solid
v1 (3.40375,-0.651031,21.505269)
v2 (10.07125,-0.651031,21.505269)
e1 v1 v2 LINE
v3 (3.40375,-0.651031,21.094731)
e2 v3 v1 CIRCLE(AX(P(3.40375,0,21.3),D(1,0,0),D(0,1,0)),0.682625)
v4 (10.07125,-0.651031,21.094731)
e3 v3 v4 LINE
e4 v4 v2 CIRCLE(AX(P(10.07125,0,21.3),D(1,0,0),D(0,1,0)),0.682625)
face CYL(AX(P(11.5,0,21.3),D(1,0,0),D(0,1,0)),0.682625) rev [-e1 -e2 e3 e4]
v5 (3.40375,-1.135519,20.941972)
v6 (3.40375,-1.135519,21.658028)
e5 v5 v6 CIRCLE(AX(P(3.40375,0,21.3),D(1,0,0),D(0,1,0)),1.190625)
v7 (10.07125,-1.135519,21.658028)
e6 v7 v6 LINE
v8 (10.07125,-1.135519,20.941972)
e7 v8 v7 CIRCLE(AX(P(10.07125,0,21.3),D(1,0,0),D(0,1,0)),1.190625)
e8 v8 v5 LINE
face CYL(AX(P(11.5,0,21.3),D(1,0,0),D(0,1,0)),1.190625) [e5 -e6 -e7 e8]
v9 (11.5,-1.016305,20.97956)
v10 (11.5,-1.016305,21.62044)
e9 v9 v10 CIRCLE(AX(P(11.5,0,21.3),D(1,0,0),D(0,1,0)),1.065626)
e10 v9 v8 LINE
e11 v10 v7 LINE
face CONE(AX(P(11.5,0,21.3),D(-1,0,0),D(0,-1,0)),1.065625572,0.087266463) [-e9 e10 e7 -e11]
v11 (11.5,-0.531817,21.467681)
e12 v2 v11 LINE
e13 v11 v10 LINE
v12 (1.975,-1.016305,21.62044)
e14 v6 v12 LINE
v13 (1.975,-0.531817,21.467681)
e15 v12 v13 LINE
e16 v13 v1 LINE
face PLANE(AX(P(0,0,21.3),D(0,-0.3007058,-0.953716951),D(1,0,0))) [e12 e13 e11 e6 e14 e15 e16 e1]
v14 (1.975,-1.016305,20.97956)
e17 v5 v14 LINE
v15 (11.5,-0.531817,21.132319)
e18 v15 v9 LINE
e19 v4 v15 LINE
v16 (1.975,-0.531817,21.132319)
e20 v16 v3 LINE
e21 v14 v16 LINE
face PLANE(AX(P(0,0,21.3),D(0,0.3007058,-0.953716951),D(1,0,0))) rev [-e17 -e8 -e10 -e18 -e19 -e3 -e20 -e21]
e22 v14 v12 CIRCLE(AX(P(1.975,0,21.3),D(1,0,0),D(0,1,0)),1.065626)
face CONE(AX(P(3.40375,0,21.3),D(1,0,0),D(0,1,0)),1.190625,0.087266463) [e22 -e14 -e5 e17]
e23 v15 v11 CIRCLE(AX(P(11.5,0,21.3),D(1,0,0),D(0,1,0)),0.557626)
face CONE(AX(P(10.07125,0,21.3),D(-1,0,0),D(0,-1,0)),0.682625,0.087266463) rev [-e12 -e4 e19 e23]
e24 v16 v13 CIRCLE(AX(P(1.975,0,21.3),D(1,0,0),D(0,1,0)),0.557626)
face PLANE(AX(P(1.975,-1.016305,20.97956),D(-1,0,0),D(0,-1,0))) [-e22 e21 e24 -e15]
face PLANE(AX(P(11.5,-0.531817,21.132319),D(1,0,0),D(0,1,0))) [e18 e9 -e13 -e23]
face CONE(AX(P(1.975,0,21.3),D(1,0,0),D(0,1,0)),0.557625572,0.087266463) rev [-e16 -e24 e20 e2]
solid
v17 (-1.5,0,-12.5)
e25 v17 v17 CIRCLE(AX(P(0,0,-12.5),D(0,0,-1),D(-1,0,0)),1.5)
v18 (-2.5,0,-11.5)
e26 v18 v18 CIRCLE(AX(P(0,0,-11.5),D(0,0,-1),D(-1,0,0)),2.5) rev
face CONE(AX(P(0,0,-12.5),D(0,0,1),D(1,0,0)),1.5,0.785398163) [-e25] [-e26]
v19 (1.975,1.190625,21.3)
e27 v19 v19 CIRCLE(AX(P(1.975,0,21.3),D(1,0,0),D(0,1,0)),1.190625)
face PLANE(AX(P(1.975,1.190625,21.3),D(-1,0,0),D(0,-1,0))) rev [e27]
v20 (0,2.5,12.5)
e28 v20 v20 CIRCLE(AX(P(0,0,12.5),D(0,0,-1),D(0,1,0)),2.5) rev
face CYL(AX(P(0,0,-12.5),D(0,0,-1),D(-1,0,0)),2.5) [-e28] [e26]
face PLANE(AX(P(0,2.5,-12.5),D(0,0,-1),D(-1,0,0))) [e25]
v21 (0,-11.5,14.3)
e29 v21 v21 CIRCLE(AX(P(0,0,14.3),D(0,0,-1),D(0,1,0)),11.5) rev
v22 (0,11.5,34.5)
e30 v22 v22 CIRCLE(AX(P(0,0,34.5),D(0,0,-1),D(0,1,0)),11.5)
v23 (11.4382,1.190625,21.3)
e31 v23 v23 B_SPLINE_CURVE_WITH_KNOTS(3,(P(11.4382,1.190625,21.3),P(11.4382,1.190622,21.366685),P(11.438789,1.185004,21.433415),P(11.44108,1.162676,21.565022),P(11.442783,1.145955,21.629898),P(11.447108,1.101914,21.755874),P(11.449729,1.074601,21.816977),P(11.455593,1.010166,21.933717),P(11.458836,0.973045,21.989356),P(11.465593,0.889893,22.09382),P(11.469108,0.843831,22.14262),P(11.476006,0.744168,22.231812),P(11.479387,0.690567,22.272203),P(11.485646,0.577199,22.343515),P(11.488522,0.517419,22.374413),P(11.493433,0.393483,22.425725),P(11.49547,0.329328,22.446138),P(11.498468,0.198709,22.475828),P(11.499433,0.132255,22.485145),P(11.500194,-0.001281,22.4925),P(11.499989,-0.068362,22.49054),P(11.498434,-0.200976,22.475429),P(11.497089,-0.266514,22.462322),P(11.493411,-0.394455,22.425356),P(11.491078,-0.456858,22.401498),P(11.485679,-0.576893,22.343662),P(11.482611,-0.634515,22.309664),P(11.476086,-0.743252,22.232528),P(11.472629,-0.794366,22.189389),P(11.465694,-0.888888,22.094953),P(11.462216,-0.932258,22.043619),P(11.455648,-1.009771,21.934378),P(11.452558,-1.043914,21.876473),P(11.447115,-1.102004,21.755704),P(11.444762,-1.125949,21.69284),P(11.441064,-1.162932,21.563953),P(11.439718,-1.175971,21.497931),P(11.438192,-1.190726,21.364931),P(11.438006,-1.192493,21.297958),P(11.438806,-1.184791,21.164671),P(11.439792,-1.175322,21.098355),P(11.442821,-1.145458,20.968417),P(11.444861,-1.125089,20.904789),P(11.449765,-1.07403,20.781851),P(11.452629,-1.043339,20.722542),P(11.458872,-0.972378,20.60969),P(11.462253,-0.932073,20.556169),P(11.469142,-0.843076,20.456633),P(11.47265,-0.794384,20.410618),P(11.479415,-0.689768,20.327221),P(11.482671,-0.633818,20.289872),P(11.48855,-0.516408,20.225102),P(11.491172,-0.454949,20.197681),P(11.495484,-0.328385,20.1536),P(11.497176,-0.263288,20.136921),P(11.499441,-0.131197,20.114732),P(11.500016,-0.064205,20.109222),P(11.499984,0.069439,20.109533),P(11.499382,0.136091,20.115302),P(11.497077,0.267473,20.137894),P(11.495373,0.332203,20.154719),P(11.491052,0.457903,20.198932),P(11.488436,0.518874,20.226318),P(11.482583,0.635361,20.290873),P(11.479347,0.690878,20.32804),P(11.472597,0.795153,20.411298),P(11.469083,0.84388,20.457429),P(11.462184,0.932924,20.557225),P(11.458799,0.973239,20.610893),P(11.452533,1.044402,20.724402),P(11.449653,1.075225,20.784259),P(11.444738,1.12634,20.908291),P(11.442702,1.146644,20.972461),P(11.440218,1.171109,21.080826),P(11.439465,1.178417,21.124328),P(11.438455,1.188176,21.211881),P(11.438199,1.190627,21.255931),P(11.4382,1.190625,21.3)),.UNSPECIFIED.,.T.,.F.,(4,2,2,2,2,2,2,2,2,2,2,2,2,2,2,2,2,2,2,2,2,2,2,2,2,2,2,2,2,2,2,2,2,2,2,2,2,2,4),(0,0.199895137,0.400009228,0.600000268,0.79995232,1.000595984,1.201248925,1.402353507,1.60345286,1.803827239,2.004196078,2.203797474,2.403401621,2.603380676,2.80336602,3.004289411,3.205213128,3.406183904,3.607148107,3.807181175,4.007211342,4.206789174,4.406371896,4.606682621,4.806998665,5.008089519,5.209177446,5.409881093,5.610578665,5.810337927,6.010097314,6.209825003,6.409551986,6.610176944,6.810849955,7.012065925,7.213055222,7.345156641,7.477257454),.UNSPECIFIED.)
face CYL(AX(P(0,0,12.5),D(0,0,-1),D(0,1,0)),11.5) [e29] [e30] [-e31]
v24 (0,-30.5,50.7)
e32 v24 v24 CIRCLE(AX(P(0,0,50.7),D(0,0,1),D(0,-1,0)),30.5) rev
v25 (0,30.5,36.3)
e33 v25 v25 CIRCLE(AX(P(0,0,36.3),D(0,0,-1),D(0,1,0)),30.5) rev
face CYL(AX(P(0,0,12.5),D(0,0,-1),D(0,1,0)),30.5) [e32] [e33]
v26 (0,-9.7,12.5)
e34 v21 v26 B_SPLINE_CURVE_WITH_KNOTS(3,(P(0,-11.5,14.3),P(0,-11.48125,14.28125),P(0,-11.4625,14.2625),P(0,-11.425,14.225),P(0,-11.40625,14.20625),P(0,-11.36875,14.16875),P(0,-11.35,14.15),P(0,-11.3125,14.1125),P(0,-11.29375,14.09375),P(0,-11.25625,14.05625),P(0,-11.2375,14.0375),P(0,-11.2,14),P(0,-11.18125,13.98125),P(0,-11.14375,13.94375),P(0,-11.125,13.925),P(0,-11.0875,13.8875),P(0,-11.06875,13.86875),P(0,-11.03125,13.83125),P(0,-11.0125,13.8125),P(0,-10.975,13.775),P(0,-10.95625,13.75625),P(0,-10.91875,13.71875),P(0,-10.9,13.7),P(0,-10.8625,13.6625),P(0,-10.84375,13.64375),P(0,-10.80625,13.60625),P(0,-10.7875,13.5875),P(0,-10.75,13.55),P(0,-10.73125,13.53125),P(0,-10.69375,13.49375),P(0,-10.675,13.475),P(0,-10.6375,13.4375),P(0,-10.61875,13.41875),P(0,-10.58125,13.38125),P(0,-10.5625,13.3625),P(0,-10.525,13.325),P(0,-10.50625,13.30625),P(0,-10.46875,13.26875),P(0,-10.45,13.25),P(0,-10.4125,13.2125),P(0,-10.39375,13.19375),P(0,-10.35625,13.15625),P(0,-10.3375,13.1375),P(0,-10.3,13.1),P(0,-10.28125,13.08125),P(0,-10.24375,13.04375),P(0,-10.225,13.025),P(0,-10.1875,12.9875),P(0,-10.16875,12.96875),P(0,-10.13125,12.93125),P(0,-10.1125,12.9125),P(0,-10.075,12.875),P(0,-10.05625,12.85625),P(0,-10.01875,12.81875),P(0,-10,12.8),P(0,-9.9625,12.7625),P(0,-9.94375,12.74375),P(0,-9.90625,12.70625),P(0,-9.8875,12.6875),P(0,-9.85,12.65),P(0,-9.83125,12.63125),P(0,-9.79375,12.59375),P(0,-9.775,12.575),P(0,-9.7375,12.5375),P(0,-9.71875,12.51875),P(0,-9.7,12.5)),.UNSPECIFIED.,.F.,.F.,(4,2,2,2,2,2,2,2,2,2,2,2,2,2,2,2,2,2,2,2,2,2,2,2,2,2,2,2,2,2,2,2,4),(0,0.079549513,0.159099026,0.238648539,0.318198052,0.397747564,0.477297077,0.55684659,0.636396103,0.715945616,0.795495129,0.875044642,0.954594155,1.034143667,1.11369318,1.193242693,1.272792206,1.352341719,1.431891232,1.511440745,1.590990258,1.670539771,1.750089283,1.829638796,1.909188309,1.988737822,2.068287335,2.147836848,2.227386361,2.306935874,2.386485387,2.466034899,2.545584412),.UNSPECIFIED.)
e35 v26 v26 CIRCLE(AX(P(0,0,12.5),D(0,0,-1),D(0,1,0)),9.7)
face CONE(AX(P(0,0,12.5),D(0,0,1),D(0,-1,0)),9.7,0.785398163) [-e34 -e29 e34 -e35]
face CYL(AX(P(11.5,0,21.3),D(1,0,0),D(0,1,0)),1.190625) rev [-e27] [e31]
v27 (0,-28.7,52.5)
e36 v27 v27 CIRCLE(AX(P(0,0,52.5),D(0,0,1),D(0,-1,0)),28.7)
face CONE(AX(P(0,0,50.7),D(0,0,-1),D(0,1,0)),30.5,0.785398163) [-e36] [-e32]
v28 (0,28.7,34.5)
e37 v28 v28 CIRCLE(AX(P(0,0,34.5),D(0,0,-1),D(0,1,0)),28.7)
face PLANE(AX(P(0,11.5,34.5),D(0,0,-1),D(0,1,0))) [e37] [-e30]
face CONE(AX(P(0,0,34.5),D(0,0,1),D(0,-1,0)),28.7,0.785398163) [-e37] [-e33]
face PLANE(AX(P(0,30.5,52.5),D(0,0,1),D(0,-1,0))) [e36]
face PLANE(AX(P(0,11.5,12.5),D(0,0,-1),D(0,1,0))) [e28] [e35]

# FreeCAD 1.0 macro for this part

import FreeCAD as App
import Part
import Sketcher
from FreeCAD import Vector
Q = App.Units.Quantity


def edges_at(feature, points):
    """Names of the edges that pass closest to the given points."""
    edges = feature.Shape.Edges
    near = lambda p: min(range(len(edges)), key=lambda i: edges[i].distToShape(Part.Vertex(*p))[0])
    return sorted({f"Edge{near(p) + 1}" for p in points})

doc = App.newDocument("Part")
body = doc.addObject("PartDesign::Body", "Body")

# Sketch on YZ plane
sketch1 = doc.addObject("Sketcher::SketchObject", "Sketch")
body.addObject(sketch1)
sketch1.AttachmentSupport = (doc.YZ_Plane, [""])
sketch1.MapMode = "FlatFace"
sketch1.addGeometry([
    Part.LineSegment(Vector(2.5, 12.5, 0), Vector(0, 12.5, 0)),
    Part.LineSegment(Vector(0, 12.5, 0), Vector(0, -12.5, 0)),
    Part.LineSegment(Vector(0, -12.5, 0), Vector(2.5, -12.5, 0)),
    Part.LineSegment(Vector(2.5, -12.5, 0), Vector(2.5, 12.5, 0)),
], False)
sketch1.addConstraint([
    Sketcher.Constraint("Coincident", 0, 2, 1, 1),
    Sketcher.Constraint("Coincident", 1, 2, 2, 1),
    Sketcher.Constraint("Coincident", 2, 2, 3, 1),
    Sketcher.Constraint("Coincident", 3, 2, 0, 1),
    Sketcher.Constraint("Horizontal", 0),
    Sketcher.Constraint("Vertical", 1),
    Sketcher.Constraint("Horizontal", 2),
    Sketcher.Constraint("Vertical", 3),
    Sketcher.Constraint("Symmetric", 0, 2, 1, 2, -1, 1),
    Sketcher.Constraint("DistanceY", 1, 2, 1, 1, 25.0),
    Sketcher.Constraint("DistanceX", 0, 2, 0, 1, 2.5),
])
revolution = doc.addObject("PartDesign::Revolution", "Revolution")
body.addObject(revolution)
revolution.Profile = sketch1
revolution.ReferenceAxis = (sketch1, ["V_Axis"])
revolution.Angle = 360

# Sketch on YZ plane
sketch2 = doc.addObject("Sketcher::SketchObject", "Sketch001")
body.addObject(sketch2)
sketch2.AttachmentSupport = (doc.YZ_Plane, [""])
sketch2.MapMode = "FlatFace"
sketch2.addGeometry([
    Part.LineSegment(Vector(11.5, 12.5, 0), Vector(11.5, 34.5, 0)),  # 0
    Part.LineSegment(Vector(11.5, 34.5, 0), Vector(30.5, 34.5, 0)),  # 1
    Part.LineSegment(Vector(30.5, 34.5, 0), Vector(30.5, 52.5, 0)),  # 2
    Part.LineSegment(Vector(30.5, 52.5, 0), Vector(0, 52.5, 0)),  # 3
    Part.LineSegment(Vector(0, 52.5, 0), Vector(0, 12.5, 0)),  # 4
    Part.LineSegment(Vector(0, 12.5, 0), Vector(11.5, 12.5, 0)),  # 5
], False)
sketch2.addConstraint([
    Sketcher.Constraint("Coincident", 0, 2, 1, 1),
    Sketcher.Constraint("Coincident", 1, 2, 2, 1),
    Sketcher.Constraint("Coincident", 2, 2, 3, 1),
    Sketcher.Constraint("Coincident", 3, 2, 4, 1),
    Sketcher.Constraint("Coincident", 4, 2, 5, 1),
    Sketcher.Constraint("Coincident", 5, 2, 0, 1),
    Sketcher.Constraint("Vertical", 0),
    Sketcher.Constraint("Horizontal", 1),
    Sketcher.Constraint("Vertical", 2),
    Sketcher.Constraint("Horizontal", 3),
    Sketcher.Constraint("Vertical", 4),
    Sketcher.Constraint("Horizontal", 5),
    Sketcher.Constraint("PointOnObject", 3, 2, -2),
    Sketcher.Constraint("DistanceX", 1, 1, 1, 2, 19.0),
    Sketcher.Constraint("DistanceY", 0, 1, 0, 2, 22.0),
    Sketcher.Constraint("DistanceY", 2, 1, 2, 2, 18.0),
    Sketcher.Constraint("DistanceX", 3, 2, 3, 1, 30.5),
    Sketcher.Constraint("DistanceY", -1, 1, 0, 2, 34.5),
])
revolution2 = doc.addObject("PartDesign::Revolution", "Revolution001")
body.addObject(revolution2)
revolution2.Profile = sketch2
revolution2.ReferenceAxis = (sketch2, ["V_Axis"])
revolution2.Angle = 360
doc.recompute()

chamfer = doc.addObject("PartDesign::Chamfer", "Chamfer")
body.addObject(chamfer)
chamfer.Base = (revolution2, edges_at(revolution2, [(2.5, 0, -12.5)]))
chamfer.Size = 1
doc.recompute()

chamfer2 = doc.addObject("PartDesign::Chamfer", "Chamfer001")
body.addObject(chamfer2)
chamfer2.Base = (chamfer, edges_at(chamfer, [(0, -11.5, 12.5), (0, -30.5, 34.5), (0, -30.5, 52.5)]))
chamfer2.Size = 1.8

# Sketch on XY plane
sketch3 = doc.addObject("Sketcher::SketchObject", "Sketch002")
body.addObject(sketch3)
sketch3.AttachmentSupport = (doc.XY_Plane, [""])
sketch3.MapMode = "FlatFace"
sketch3.AttachmentOffset = App.Placement(Vector(0, 0, 21.3), App.Rotation())
sketch3.addGeometry([
    Part.LineSegment(Vector(1.975, 1.190625, 0), Vector(1.975, 0, 0)),
    Part.LineSegment(Vector(1.975, 0, 0), Vector(11.5, 0, 0)),
    Part.LineSegment(Vector(11.5, 0, 0), Vector(11.5, 1.190625, 0)),
    Part.LineSegment(Vector(11.5, 1.190625, 0), Vector(1.975, 1.190625, 0)),
], False)
sketch3.addConstraint([
    Sketcher.Constraint("Coincident", 0, 2, 1, 1),
    Sketcher.Constraint("Coincident", 1, 2, 2, 1),
    Sketcher.Constraint("Coincident", 2, 2, 3, 1),
    Sketcher.Constraint("Coincident", 3, 2, 0, 1),
    Sketcher.Constraint("Vertical", 0),
    Sketcher.Constraint("Horizontal", 1),
    Sketcher.Constraint("Vertical", 2),
    Sketcher.Constraint("Horizontal", 3),
    Sketcher.Constraint("PointOnObject", 0, 2, -1),
    Sketcher.Constraint("DistanceX", -1, 1, 1, 2, 11.5),
    Sketcher.Constraint("DistanceX", 1, 1, 1, 2, 9.525),
    Sketcher.Constraint("DistanceY", 0, 2, 0, 1, 1.190625),
])
groove = doc.addObject("PartDesign::Groove", "Groove")
body.addObject(groove)
groove.Profile = sketch3
groove.ReferenceAxis = (sketch3, ["H_Axis"])
groove.Angle = 360
body2 = doc.addObject("PartDesign::Body", "Body001")

# Sketch on XY plane
sketch4 = doc.addObject("Sketcher::SketchObject", "Sketch003")
body2.addObject(sketch4)
sketch4.AttachmentSupport = (doc.getObject("XY_Plane001"), [""])
sketch4.MapMode = "FlatFace"
sketch4.AttachmentOffset = App.Placement(Vector(0, 0, 21.3), App.Rotation())
sketch4.addGeometry([
    Part.LineSegment(Vector(11.5, 1.065626, 0), Vector(10.07125, 1.190625, 0)),  # 0
    Part.LineSegment(Vector(10.07125, 1.190625, 0), Vector(3.40375, 1.190625, 0)),  # 1
    Part.LineSegment(Vector(3.40375, 1.190625, 0), Vector(1.975, 1.065626, 0)),  # 2
    Part.LineSegment(Vector(1.975, 1.065626, 0), Vector(1.975, 0.557626, 0)),  # 3
    Part.LineSegment(Vector(1.975, 0.557626, 0), Vector(3.40375, 0.682625, 0)),  # 4
    Part.LineSegment(Vector(3.40375, 0.682625, 0), Vector(10.07125, 0.682625, 0)),  # 5
    Part.LineSegment(Vector(10.07125, 0.682625, 0), Vector(11.5, 0.557626, 0)),  # 6
    Part.LineSegment(Vector(11.5, 0.557626, 0), Vector(11.5, 1.065626, 0)),  # 7
], False)
sketch4.addConstraint([
    Sketcher.Constraint("Coincident", 0, 2, 1, 1),
    Sketcher.Constraint("Coincident", 1, 2, 2, 1),
    Sketcher.Constraint("Coincident", 2, 2, 3, 1),
    Sketcher.Constraint("Coincident", 3, 2, 4, 1),
    Sketcher.Constraint("Coincident", 4, 2, 5, 1),
    Sketcher.Constraint("Coincident", 5, 2, 6, 1),
    Sketcher.Constraint("Coincident", 6, 2, 7, 1),
    Sketcher.Constraint("Coincident", 7, 2, 0, 1),
    Sketcher.Constraint("Horizontal", 1),
    Sketcher.Constraint("Vertical", 3),
    Sketcher.Constraint("Horizontal", 5),
    Sketcher.Constraint("Vertical", 7),
    Sketcher.Constraint("Parallel", 2, 4),
    Sketcher.Constraint("Parallel", 0, 6),
    Sketcher.Constraint("Horizontal", 3, 2, 6, 2),
    Sketcher.Constraint("Horizontal", 2, 2, 7, 2),
    Sketcher.Constraint("Vertical", 1, 2, 4, 2),
    Sketcher.Constraint("Equal", 0, 2),
    Sketcher.Constraint("Angle", 0, Q("175 deg")),
    Sketcher.Constraint("DistanceX", -1, 1, 6, 2, 11.5),
    Sketcher.Constraint("DistanceY", 3, 2, 3, 1, 0.508),
    Sketcher.Constraint("DistanceX", 1, 2, 1, 1, 6.6675),
    Sketcher.Constraint("DistanceX", -1, 1, 2, 2, 1.975),
    Sketcher.Constraint("DistanceY", -1, 1, 0, 2, 1.190625),
])
revolution3 = doc.addObject("PartDesign::Revolution", "Revolution002")
body2.addObject(revolution3)
revolution3.Profile = sketch4
revolution3.ReferenceAxis = (sketch4, ["H_Axis"])
revolution3.Angle = 162.5
revolution3.Reversed = True

# Sketch on XY plane
sketch5 = doc.addObject("Sketcher::SketchObject", "Sketch004")
body2.addObject(sketch5)
sketch5.AttachmentSupport = (doc.getObject("XY_Plane001"), [""])
sketch5.MapMode = "FlatFace"
sketch5.AttachmentOffset = App.Placement(Vector(0, 0, 21.3), App.Rotation())
sketch5.addGeometry([
    Part.LineSegment(Vector(11.5, 1.065626, 0), Vector(10.07125, 1.190625, 0)),  # 0
    Part.LineSegment(Vector(10.07125, 1.190625, 0), Vector(3.40375, 1.190625, 0)),  # 1
    Part.LineSegment(Vector(3.40375, 1.190625, 0), Vector(1.975, 1.065626, 0)),  # 2
    Part.LineSegment(Vector(1.975, 1.065626, 0), Vector(1.975, 0.557626, 0)),  # 3
    Part.LineSegment(Vector(1.975, 0.557626, 0), Vector(3.40375, 0.682625, 0)),  # 4
    Part.LineSegment(Vector(3.40375, 0.682625, 0), Vector(10.07125, 0.682625, 0)),  # 5
    Part.LineSegment(Vector(10.07125, 0.682625, 0), Vector(11.5, 0.557626, 0)),  # 6
    Part.LineSegment(Vector(11.5, 0.557626, 0), Vector(11.5, 1.065626, 0)),  # 7
], False)
sketch5.addConstraint([
    Sketcher.Constraint("Coincident", 0, 2, 1, 1),
    Sketcher.Constraint("Coincident", 1, 2, 2, 1),
    Sketcher.Constraint("Coincident", 2, 2, 3, 1),
    Sketcher.Constraint("Coincident", 3, 2, 4, 1),
    Sketcher.Constraint("Coincident", 4, 2, 5, 1),
    Sketcher.Constraint("Coincident", 5, 2, 6, 1),
    Sketcher.Constraint("Coincident", 6, 2, 7, 1),
    Sketcher.Constraint("Coincident", 7, 2, 0, 1),
    Sketcher.Constraint("Horizontal", 1),
    Sketcher.Constraint("Vertical", 3),
    Sketcher.Constraint("Horizontal", 5),
    Sketcher.Constraint("Vertical", 7),
    Sketcher.Constraint("Parallel", 2, 4),
    Sketcher.Constraint("Parallel", 0, 6),
    Sketcher.Constraint("Horizontal", 3, 2, 6, 2),
    Sketcher.Constraint("Horizontal", 2, 2, 7, 2),
    Sketcher.Constraint("Vertical", 1, 2, 4, 2),
    Sketcher.Constraint("Equal", 0, 2),
    Sketcher.Constraint("Angle", 0, Q("175 deg")),
    Sketcher.Constraint("DistanceX", -1, 1, 6, 2, 11.5),
    Sketcher.Constraint("DistanceY", 3, 2, 3, 1, 0.508),
    Sketcher.Constraint("DistanceX", 1, 2, 1, 1, 6.6675),
    Sketcher.Constraint("DistanceX", -1, 1, 2, 2, 1.975),
    Sketcher.Constraint("DistanceY", -1, 1, 0, 2, 1.190625),
])
revolution4 = doc.addObject("PartDesign::Revolution", "Revolution003")
body2.addObject(revolution4)
revolution4.Profile = sketch5
revolution4.ReferenceAxis = (sketch5, ["H_Axis"])
revolution4.Angle = 162.5

doc.recompute()
